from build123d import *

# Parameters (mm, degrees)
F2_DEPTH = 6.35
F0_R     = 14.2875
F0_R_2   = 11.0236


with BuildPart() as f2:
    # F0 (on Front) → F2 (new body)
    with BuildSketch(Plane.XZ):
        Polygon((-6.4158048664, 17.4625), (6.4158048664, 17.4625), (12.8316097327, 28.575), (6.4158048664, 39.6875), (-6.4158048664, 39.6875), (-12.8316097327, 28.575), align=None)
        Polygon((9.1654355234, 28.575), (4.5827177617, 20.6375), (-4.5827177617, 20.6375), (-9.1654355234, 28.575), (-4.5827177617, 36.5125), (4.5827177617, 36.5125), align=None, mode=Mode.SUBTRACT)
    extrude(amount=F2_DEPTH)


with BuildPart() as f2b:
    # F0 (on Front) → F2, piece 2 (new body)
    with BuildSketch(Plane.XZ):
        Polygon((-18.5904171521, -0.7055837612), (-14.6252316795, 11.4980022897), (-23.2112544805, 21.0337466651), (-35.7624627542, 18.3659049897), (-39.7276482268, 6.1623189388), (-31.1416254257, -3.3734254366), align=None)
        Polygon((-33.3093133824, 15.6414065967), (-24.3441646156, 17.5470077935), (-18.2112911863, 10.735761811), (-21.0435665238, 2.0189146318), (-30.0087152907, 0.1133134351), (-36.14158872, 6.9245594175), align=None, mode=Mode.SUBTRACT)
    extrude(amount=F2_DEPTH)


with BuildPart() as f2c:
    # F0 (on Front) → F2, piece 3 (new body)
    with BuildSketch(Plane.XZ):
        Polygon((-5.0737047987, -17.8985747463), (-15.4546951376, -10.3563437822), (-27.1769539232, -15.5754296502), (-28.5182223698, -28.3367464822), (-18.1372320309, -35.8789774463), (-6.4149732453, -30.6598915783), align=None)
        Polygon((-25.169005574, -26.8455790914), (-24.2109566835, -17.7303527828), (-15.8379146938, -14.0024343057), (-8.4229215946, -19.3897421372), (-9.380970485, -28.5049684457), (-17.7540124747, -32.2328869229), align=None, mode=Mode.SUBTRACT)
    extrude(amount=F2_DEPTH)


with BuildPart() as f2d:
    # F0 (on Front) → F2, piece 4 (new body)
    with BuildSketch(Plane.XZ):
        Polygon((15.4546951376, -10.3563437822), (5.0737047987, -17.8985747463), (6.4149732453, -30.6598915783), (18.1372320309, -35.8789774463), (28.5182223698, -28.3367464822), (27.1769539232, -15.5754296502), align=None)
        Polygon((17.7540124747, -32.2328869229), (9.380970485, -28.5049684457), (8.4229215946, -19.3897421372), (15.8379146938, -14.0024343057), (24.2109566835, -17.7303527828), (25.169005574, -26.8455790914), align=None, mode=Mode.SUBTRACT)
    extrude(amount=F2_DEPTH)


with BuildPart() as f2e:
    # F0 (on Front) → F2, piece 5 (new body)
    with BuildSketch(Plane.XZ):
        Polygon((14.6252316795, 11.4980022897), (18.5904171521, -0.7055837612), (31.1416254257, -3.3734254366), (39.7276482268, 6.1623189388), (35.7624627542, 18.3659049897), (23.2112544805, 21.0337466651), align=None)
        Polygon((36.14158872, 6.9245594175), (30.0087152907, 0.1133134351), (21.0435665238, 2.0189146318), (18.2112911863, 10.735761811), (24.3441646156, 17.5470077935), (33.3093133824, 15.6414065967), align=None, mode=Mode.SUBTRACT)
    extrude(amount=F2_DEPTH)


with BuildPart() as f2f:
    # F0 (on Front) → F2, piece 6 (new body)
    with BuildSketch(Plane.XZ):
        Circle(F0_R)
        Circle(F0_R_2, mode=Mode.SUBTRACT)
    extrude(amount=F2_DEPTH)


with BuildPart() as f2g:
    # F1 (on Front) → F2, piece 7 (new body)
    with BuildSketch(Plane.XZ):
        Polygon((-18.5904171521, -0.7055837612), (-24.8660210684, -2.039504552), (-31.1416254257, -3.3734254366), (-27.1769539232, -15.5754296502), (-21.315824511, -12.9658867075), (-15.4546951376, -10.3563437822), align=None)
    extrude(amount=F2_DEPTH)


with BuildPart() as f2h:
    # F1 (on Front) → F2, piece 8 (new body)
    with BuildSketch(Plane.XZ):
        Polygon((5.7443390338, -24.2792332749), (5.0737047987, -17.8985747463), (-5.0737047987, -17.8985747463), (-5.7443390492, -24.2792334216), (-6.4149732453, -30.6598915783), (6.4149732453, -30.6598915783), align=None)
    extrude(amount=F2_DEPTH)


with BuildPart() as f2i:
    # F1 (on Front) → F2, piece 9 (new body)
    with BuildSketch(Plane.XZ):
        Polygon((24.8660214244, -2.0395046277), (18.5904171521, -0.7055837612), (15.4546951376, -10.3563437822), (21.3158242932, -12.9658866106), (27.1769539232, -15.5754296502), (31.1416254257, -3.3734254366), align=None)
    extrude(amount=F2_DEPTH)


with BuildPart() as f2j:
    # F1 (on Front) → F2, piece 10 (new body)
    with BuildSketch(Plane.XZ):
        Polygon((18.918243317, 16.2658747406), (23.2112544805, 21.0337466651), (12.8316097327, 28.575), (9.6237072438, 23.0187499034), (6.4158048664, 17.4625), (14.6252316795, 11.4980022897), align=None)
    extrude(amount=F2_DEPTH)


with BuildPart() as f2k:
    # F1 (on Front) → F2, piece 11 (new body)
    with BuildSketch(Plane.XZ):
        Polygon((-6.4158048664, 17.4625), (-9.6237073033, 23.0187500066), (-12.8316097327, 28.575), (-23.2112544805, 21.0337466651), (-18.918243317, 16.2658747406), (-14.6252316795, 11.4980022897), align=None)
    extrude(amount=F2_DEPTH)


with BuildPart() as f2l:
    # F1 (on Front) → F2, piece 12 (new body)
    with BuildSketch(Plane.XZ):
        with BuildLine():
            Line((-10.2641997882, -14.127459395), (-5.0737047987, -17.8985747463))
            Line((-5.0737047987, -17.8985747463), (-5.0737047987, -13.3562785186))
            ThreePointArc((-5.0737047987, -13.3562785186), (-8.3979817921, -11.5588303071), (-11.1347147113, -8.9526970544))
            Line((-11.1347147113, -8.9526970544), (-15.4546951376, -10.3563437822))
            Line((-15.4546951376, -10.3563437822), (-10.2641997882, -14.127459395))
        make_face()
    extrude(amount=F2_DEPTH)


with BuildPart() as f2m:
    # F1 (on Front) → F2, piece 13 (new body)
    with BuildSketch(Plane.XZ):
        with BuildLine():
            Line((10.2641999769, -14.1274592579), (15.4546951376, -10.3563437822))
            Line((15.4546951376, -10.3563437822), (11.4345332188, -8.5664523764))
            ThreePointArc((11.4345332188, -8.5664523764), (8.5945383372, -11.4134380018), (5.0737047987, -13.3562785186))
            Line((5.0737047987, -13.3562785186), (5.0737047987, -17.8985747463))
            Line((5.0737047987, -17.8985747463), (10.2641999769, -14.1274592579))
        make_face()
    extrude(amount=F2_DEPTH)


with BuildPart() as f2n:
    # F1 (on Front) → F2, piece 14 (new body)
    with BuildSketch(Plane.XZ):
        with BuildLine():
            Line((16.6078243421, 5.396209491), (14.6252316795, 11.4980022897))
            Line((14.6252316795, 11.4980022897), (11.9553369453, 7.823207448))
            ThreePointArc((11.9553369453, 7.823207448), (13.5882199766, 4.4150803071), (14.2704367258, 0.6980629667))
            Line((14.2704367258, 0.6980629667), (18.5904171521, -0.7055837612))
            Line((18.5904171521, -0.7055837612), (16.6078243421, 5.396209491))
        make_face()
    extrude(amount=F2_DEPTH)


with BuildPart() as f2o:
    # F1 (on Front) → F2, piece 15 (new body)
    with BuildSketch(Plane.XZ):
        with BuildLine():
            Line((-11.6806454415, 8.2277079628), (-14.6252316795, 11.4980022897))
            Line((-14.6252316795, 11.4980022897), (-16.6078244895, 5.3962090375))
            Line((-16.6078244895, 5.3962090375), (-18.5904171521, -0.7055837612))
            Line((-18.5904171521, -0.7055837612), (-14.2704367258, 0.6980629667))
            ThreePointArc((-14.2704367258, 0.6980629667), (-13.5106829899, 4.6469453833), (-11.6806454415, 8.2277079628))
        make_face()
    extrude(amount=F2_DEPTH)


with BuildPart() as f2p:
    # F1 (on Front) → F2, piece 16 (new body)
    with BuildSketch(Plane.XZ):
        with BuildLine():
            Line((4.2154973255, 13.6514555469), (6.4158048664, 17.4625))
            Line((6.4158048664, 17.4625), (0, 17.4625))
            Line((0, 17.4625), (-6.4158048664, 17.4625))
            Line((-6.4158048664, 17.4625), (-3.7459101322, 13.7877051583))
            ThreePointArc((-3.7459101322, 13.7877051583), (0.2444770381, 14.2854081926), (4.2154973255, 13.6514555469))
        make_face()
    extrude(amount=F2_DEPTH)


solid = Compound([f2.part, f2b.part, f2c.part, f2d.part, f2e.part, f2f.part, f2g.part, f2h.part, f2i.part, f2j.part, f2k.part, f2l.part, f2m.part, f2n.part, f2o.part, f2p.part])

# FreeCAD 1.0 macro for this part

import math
import FreeCAD as App
import Part
import Sketcher

V = App.Vector
Q = App.Units.Quantity

doc = App.newDocument("Part")
body = doc.addObject("PartDesign::Body", "Body")

sketch1 = doc.addObject("Sketcher::SketchObject", "Sketch")
body.addObject(sketch1)
sketch1.AttachmentSupport = (doc.XZ_Plane, [""])
sketch1.MapMode = "FlatFace"
sketch1.addGeometry([
    Part.LineSegment(V(-6, 17, 0), V(6, 17, 0)),
    Part.LineSegment(V(6, 17, 0), V(13, 29, 0)),
    Part.LineSegment(V(13, 29, 0), V(6, 40, 0)),
    Part.LineSegment(V(6, 40, 0), V(-6, 40, 0)),
    Part.LineSegment(V(-6, 40, 0), V(-13, 29, 0)),
    Part.LineSegment(V(-13, 29, 0), V(-6, 17, 0)),
    Part.LineSegment(V(5, 37, 0), V(9, 29, 0)),
    Part.LineSegment(V(9, 29, 0), V(5, 21, 0)),
    Part.LineSegment(V(5, 21, 0), V(-5, 21, 0)),
    Part.LineSegment(V(-5, 21, 0), V(-9, 29, 0)),
    Part.LineSegment(V(-9, 29, 0), V(-5, 37, 0)),
    Part.LineSegment(V(-5, 37, 0), V(5, 37, 0)),
], False)
sketch1.addConstraint([
    Sketcher.Constraint("Coincident", 0, 2, 1, 1),
    Sketcher.Constraint("Coincident", 1, 2, 2, 1),
    Sketcher.Constraint("Coincident", 2, 2, 3, 1),
    Sketcher.Constraint("Coincident", 3, 2, 4, 1),
    Sketcher.Constraint("Coincident", 4, 2, 5, 1),
    Sketcher.Constraint("Coincident", 5, 2, 0, 1),
    Sketcher.Constraint("Coincident", 6, 2, 7, 1),
    Sketcher.Constraint("Coincident", 7, 2, 8, 1),
    Sketcher.Constraint("Coincident", 8, 2, 9, 1),
    Sketcher.Constraint("Coincident", 9, 2, 10, 1),
    Sketcher.Constraint("Coincident", 10, 2, 11, 1),
    Sketcher.Constraint("Coincident", 11, 2, 6, 1),
    Sketcher.Constraint("Horizontal", 0),
    Sketcher.Constraint("Horizontal", 3),
    Sketcher.Constraint("Horizontal", 8),
    Sketcher.Constraint("Horizontal", 11),
    Sketcher.Constraint("Symmetric", 1, 2, 4, 2, -2),
    Sketcher.Constraint("Symmetric", 6, 2, 9, 2, -2),
    Sketcher.Constraint("Parallel", 1, 4),
    Sketcher.Constraint("Parallel", 2, 5),
    Sketcher.Constraint("Parallel", 5, 6),
    Sketcher.Constraint("Parallel", 4, 7),
    Sketcher.Constraint("Parallel", 6, 9),
    Sketcher.Constraint("Parallel", 7, 10),
    Sketcher.Constraint("Horizontal", 4, 2, 6, 2),
    Sketcher.Constraint("Vertical", 0, 2, 2, 2),
    Sketcher.Constraint("Vertical", 3, 2, 5, 2),
    Sketcher.Constraint("Vertical", 8, 2, 10, 2),
    Sketcher.Constraint("Angle", 1, Q("60 deg")),
    Sketcher.Constraint("DistanceY", 7, 2, 2, 2, Q("0.75 in")),
    Sketcher.Constraint("DistanceY", -1, 1, 0, 2, Q("0.6875 in")),
    Sketcher.Constraint("DistanceY", -1, 1, 1, 2, Q("1.125 in")),
    Sketcher.Constraint("DistanceX", 0, 1, 0, 2, 12.83161),
    Sketcher.Constraint("DistanceX", 8, 2, 8, 1, 9.165436),
])
pad1 = doc.addObject("PartDesign::Pad", "Pad")
body.addObject(pad1)
pad1.Profile = sketch1
pad1.Length = Q("0.25 in")
body2 = doc.addObject("PartDesign::Body", "Body001")

sketch2 = doc.addObject("Sketcher::SketchObject", "Sketch001")
body2.addObject(sketch2)
sketch2.AttachmentSupport = (doc.getObject("XZ_Plane001"), [""])
sketch2.MapMode = "FlatFace"
sketch2.addGeometry([
    Part.LineSegment(V(-19, -1, 0), V(-15, 11, 0)),
    Part.LineSegment(V(-15, 11, 0), V(-23, 21, 0)),
    Part.LineSegment(V(-23, 21, 0), V(-36, 18, 0)),
    Part.LineSegment(V(-36, 18, 0), V(-40, 6, 0)),
    Part.LineSegment(V(-40, 6, 0), V(-31, -3, 0)),
    Part.LineSegment(V(-31, -3, 0), V(-19, -1, 0)),
    Part.LineSegment(V(-36, 7, 0), V(-33, 16, 0)),
    Part.LineSegment(V(-33, 16, 0), V(-24, 18, 0)),
    Part.LineSegment(V(-24, 18, 0), V(-18, 11, 0)),
    Part.LineSegment(V(-18, 11, 0), V(-21, 2, 0)),
    Part.LineSegment(V(-21, 2, 0), V(-30, 0, 0)),
    Part.LineSegment(V(-30, 0, 0), V(-36, 7, 0)),
], False)
sketch2.addConstraint([
    Sketcher.Constraint("Coincident", 0, 2, 1, 1),
    Sketcher.Constraint("Coincident", 1, 2, 2, 1),
    Sketcher.Constraint("Coincident", 2, 2, 3, 1),
    Sketcher.Constraint("Coincident", 3, 2, 4, 1),
    Sketcher.Constraint("Coincident", 4, 2, 5, 1),
    Sketcher.Constraint("Coincident", 5, 2, 0, 1),
    Sketcher.Constraint("Coincident", 6, 2, 7, 1),
    Sketcher.Constraint("Coincident", 7, 2, 8, 1),
    Sketcher.Constraint("Coincident", 8, 2, 9, 1),
    Sketcher.Constraint("Coincident", 9, 2, 10, 1),
    Sketcher.Constraint("Coincident", 10, 2, 11, 1),
    Sketcher.Constraint("Coincident", 11, 2, 6, 1),
    Sketcher.Constraint("Parallel", 0, 3),
    Sketcher.Constraint("Parallel", 1, 4),
    Sketcher.Constraint("Parallel", 2, 5),
    Sketcher.Constraint("Parallel", 3, 6),
    Sketcher.Constraint("Parallel", 5, 7),
    Sketcher.Constraint("Parallel", 4, 8),
    Sketcher.Constraint("Parallel", 6, 9),
    Sketcher.Constraint("Parallel", 7, 10),
    Sketcher.Constraint("Parallel", 8, 11),
    Sketcher.Constraint("Equal", 0, 1),
    Sketcher.Constraint("Equal", 1, 2),
    Sketcher.Constraint("Equal", 2, 3),
    Sketcher.Constraint("Equal", 6, 7),
    Sketcher.Constraint("Equal", 7, 8),
    Sketcher.Constraint("Equal", 8, 9),
    Sketcher.Constraint("Angle", 0, Q("72 deg")),
    Sketcher.Constraint("Angle", 1, Q("132 deg")),
    Sketcher.Constraint("Angle", 2, Q("-168 deg")),
    Sketcher.Constraint("DistanceY", 6, 2, 2, 2, 2.724498),
    Sketcher.Constraint("DistanceY", 6, 2, 7, 2, 1.905601),
    Sketcher.Constraint("DistanceX", 2, 2, 7, 2, 11.418298),
    Sketcher.Constraint("DistanceY", 5, 2, 9, 2, 2.724498),
    Sketcher.Constraint("DistanceX", 0, 2, -1, 1, 14.625232),
    Sketcher.Constraint("DistanceY", -1, 1, 3, 2, 6.162319),
])
pad2 = doc.addObject("PartDesign::Pad", "Pad001")
body2.addObject(pad2)
pad2.Profile = sketch2
pad2.Length = Q("0.25 in")
body3 = doc.addObject("PartDesign::Body", "Body002")

sketch3 = doc.addObject("Sketcher::SketchObject", "Sketch002")
body3.addObject(sketch3)
sketch3.AttachmentSupport = (doc.getObject("XZ_Plane002"), [""])
sketch3.MapMode = "FlatFace"
sketch3.addGeometry([
    Part.LineSegment(V(-5, -18, 0), V(-15, -10, 0)),
    Part.LineSegment(V(-15, -10, 0), V(-27, -16, 0)),
    Part.LineSegment(V(-27, -16, 0), V(-29, -28, 0)),
    Part.LineSegment(V(-29, -28, 0), V(-18, -36, 0)),
    Part.LineSegment(V(-18, -36, 0), V(-6, -31, 0)),
    Part.LineSegment(V(-6, -31, 0), V(-5, -18, 0)),
    Part.LineSegment(V(-18, -32, 0), V(-25, -27, 0)),
    Part.LineSegment(V(-25, -27, 0), V(-24, -18, 0)),
    Part.LineSegment(V(-24, -18, 0), V(-16, -14, 0)),
    Part.LineSegment(V(-16, -14, 0), V(-8, -19, 0)),
    Part.LineSegment(V(-8, -19, 0), V(-9, -29, 0)),
    Part.LineSegment(V(-9, -29, 0), V(-18, -32, 0)),
], False)
sketch3.addConstraint([
    Sketcher.Constraint("Coincident", 0, 2, 1, 1),
    Sketcher.Constraint("Coincident", 1, 2, 2, 1),
    Sketcher.Constraint("Coincident", 2, 2, 3, 1),
    Sketcher.Constraint("Coincident", 3, 2, 4, 1),
    Sketcher.Constraint("Coincident", 4, 2, 5, 1),
    Sketcher.Constraint("Coincident", 5, 2, 0, 1),
    Sketcher.Constraint("Coincident", 6, 2, 7, 1),
    Sketcher.Constraint("Coincident", 7, 2, 8, 1),
    Sketcher.Constraint("Coincident", 8, 2, 9, 1),
    Sketcher.Constraint("Coincident", 9, 2, 10, 1),
    Sketcher.Constraint("Coincident", 10, 2, 11, 1),
    Sketcher.Constraint("Coincident", 11, 2, 6, 1),
    Sketcher.Constraint("Parallel", 0, 3),
    Sketcher.Constraint("Parallel", 1, 4),
    Sketcher.Constraint("Parallel", 2, 5),
    Sketcher.Constraint("Parallel", 3, 6),
    Sketcher.Constraint("Parallel", 5, 7),
    Sketcher.Constraint("Parallel", 4, 8),
    Sketcher.Constraint("Parallel", 6, 9),
    Sketcher.Constraint("Parallel", 7, 10),
    Sketcher.Constraint("Parallel", 8, 11),
    Sketcher.Constraint("Equal", 0, 1),
    Sketcher.Constraint("Equal", 1, 2),
    Sketcher.Constraint("Equal", 2, 3),
    Sketcher.Constraint("Equal", 6, 7),
    Sketcher.Constraint("Equal", 7, 8),
    Sketcher.Constraint("Equal", 8, 9),
    Sketcher.Constraint("Angle", 0, Q("144 deg")),
    Sketcher.Constraint("Angle", 1, Q("-156 deg")),
    Sketcher.Constraint("Angle", 2, Q("-96 deg")),
    Sketcher.Constraint("DistanceY", 3, 2, 6, 2, 9.033398),
    Sketcher.Constraint("DistanceY", 9, 2, 0, 2, 9.033398),
    Sketcher.Constraint("Distance", 0, 12.83161),
    Sketcher.Constraint("DistanceY", 1, 2, -1, 1, 15.57543),
    Sketcher.Constraint("DistanceX", 9, 2, -1, 1, 8.422922),
    Sketcher.Constraint("DistanceX", 1, 2, 6, 2, 2.007948),
])
pad3 = doc.addObject("PartDesign::Pad", "Pad002")
body3.addObject(pad3)
pad3.Profile = sketch3
pad3.Length = Q("0.25 in")
body4 = doc.addObject("PartDesign::Body", "Body003")

sketch4 = doc.addObject("Sketcher::SketchObject", "Sketch003")
body4.addObject(sketch4)
sketch4.AttachmentSupport = (doc.getObject("XZ_Plane003"), [""])
sketch4.MapMode = "FlatFace"
sketch4.addGeometry([
    Part.LineSegment(V(15, -10, 0), V(5, -18, 0)),
    Part.LineSegment(V(5, -18, 0), V(6, -31, 0)),
    Part.LineSegment(V(6, -31, 0), V(18, -36, 0)),
    Part.LineSegment(V(18, -36, 0), V(29, -28, 0)),
    Part.LineSegment(V(29, -28, 0), V(27, -16, 0)),
    Part.LineSegment(V(27, -16, 0), V(15, -10, 0)),
    Part.LineSegment(V(25, -27, 0), V(18, -32, 0)),
    Part.LineSegment(V(18, -32, 0), V(9, -29, 0)),
    Part.LineSegment(V(9, -29, 0), V(8, -19, 0)),
    Part.LineSegment(V(8, -19, 0), V(16, -14, 0)),
    Part.LineSegment(V(16, -14, 0), V(24, -18, 0)),
    Part.LineSegment(V(24, -18, 0), V(25, -27, 0)),
], False)
sketch4.addConstraint([
    Sketcher.Constraint("Coincident", 0, 2, 1, 1),
    Sketcher.Constraint("Coincident", 1, 2, 2, 1),
    Sketcher.Constraint("Coincident", 2, 2, 3, 1),
    Sketcher.Constraint("Coincident", 3, 2, 4, 1),
    Sketcher.Constraint("Coincident", 4, 2, 5, 1),
    Sketcher.Constraint("Coincident", 5, 2, 0, 1),
    Sketcher.Constraint("Coincident", 6, 2, 7, 1),
    Sketcher.Constraint("Coincident", 7, 2, 8, 1),
    Sketcher.Constraint("Coincident", 8, 2, 9, 1),
    Sketcher.Constraint("Coincident", 9, 2, 10, 1),
    Sketcher.Constraint("Coincident", 10, 2, 11, 1),
    Sketcher.Constraint("Coincident", 11, 2, 6, 1),
    Sketcher.Constraint("Parallel", 0, 3),
    Sketcher.Constraint("Parallel", 1, 4),
    Sketcher.Constraint("Parallel", 2, 5),
    Sketcher.Constraint("Parallel", 3, 6),
    Sketcher.Constraint("Parallel", 5, 7),
    Sketcher.Constraint("Parallel", 4, 8),
    Sketcher.Constraint("Parallel", 6, 9),
    Sketcher.Constraint("Parallel", 7, 10),
    Sketcher.Constraint("Parallel", 8, 11),
    Sketcher.Constraint("Equal", 0, 1),
    Sketcher.Constraint("Equal", 1, 2),
    Sketcher.Constraint("Equal", 2, 3),
    Sketcher.Constraint("Equal", 6, 7),
    Sketcher.Constraint("Equal", 7, 8),
    Sketcher.Constraint("Equal", 8, 9),
    Sketcher.Constraint("Angle", 0, Q("-144 deg")),
    Sketcher.Constraint("Angle", 1, Q("-84 deg")),
    Sketcher.Constraint("Angle", 2, Q("-24 deg")),
    Sketcher.Constraint("DistanceY", 8, 2, 5, 2, 9.033398),
    Sketcher.Constraint("DistanceY", 2, 2, 11, 2, 9.033398),
    Sketcher.Constraint("Distance", 0, 12.83161),
    Sketcher.Constraint("DistanceY", 1, 2, -1, 1, 30.659892),
    Sketcher.Constraint("DistanceX", -1, 1, 7, 2, 9.38097),
    Sketcher.Constraint("DistanceX", 6, 2, 2, 2, 0.38322),
])
pad4 = doc.addObject("PartDesign::Pad", "Pad003")
body4.addObject(pad4)
pad4.Profile = sketch4
pad4.Length = Q("0.25 in")
body5 = doc.addObject("PartDesign::Body", "Body004")

sketch5 = doc.addObject("Sketcher::SketchObject", "Sketch004")
body5.addObject(sketch5)
sketch5.AttachmentSupport = (doc.getObject("XZ_Plane004"), [""])
sketch5.MapMode = "FlatFace"
sketch5.addGeometry([
    Part.LineSegment(V(15, 11, 0), V(19, -1, 0)),
    Part.LineSegment(V(19, -1, 0), V(31, -3, 0)),
    Part.LineSegment(V(31, -3, 0), V(40, 6, 0)),
    Part.LineSegment(V(40, 6, 0), V(36, 18, 0)),
    Part.LineSegment(V(36, 18, 0), V(23, 21, 0)),
    Part.LineSegment(V(23, 21, 0), V(15, 11, 0)),
    Part.LineSegment(V(33, 16, 0), V(36, 7, 0)),
    Part.LineSegment(V(36, 7, 0), V(30, 0, 0)),
    Part.LineSegment(V(30, 0, 0), V(21, 2, 0)),
    Part.LineSegment(V(21, 2, 0), V(18, 11, 0)),
    Part.LineSegment(V(18, 11, 0), V(24, 18, 0)),
    Part.LineSegment(V(24, 18, 0), V(33, 16, 0)),
], False)
sketch5.addConstraint([
    Sketcher.Constraint("Coincident", 0, 2, 1, 1),
    Sketcher.Constraint("Coincident", 1, 2, 2, 1),
    Sketcher.Constraint("Coincident", 2, 2, 3, 1),
    Sketcher.Constraint("Coincident", 3, 2, 4, 1),
    Sketcher.Constraint("Coincident", 4, 2, 5, 1),
    Sketcher.Constraint("Coincident", 5, 2, 0, 1),
    Sketcher.Constraint("Coincident", 6, 2, 7, 1),
    Sketcher.Constraint("Coincident", 7, 2, 8, 1),
    Sketcher.Constraint("Coincident", 8, 2, 9, 1),
    Sketcher.Constraint("Coincident", 9, 2, 10, 1),
    Sketcher.Constraint("Coincident", 10, 2, 11, 1),
    Sketcher.Constraint("Coincident", 11, 2, 6, 1),
    Sketcher.Constraint("Parallel", 0, 3),
    Sketcher.Constraint("Parallel", 1, 4),
    Sketcher.Constraint("Parallel", 2, 5),
    Sketcher.Constraint("Parallel", 3, 6),
    Sketcher.Constraint("Parallel", 5, 7),
    Sketcher.Constraint("Parallel", 4, 8),
    Sketcher.Constraint("Parallel", 6, 9),
    Sketcher.Constraint("Parallel", 7, 10),
    Sketcher.Constraint("Parallel", 8, 11),
    Sketcher.Constraint("Equal", 0, 1),
    Sketcher.Constraint("Equal", 1, 2),
    Sketcher.Constraint("Equal", 2, 3),
    Sketcher.Constraint("Equal", 6, 7),
    Sketcher.Constraint("Equal", 7, 8),
    Sketcher.Constraint("Equal", 8, 9),
    Sketcher.Constraint("Angle", 0, Q("-72 deg")),
    Sketcher.Constraint("Angle", 1, Q("-12 deg")),
    Sketcher.Constraint("Angle", 2, Q("48 deg")),
    Sketcher.Constraint("DistanceX", 0, 2, 7, 2, 11.418298),
    Sketcher.Constraint("DistanceY", 0, 2, 8, 2, 2.724498),
    Sketcher.Constraint("DistanceY", 7, 2, 8, 2, 1.905601),
    Sketcher.Constraint("DistanceX", 10, 2, 3, 2, 11.418298),
    Sketcher.Constraint("DistanceX", -1, 1, 2, 2, 39.727648),
    Sketcher.Constraint("DistanceY", -1, 1, 2, 2, 6.162319),
])
pad5 = doc.addObject("PartDesign::Pad", "Pad004")
body5.addObject(pad5)
pad5.Profile = sketch5
pad5.Length = Q("0.25 in")
body6 = doc.addObject("PartDesign::Body", "Body005")

sketch6 = doc.addObject("Sketcher::SketchObject", "Sketch005")
body6.addObject(sketch6)
sketch6.AttachmentSupport = (doc.getObject("XZ_Plane005"), [""])
sketch6.MapMode = "FlatFace"
sketch6.addGeometry([
    Part.Circle(V(0, 0, 0), V(0, 0, 1), 14),
    Part.Circle(V(0, 0, 0), V(0, 0, 1), 11),
], False)
sketch6.addConstraint([
    Sketcher.Constraint("Coincident", 0, 3, -1, 1),
    Sketcher.Constraint("Coincident", 1, 3, -1, 1),
    Sketcher.Constraint("Diameter", 0, Q("1.125 in")),
    Sketcher.Constraint("Diameter", 1, Q("0.868 in")),
])
pad6 = doc.addObject("PartDesign::Pad", "Pad005")
body6.addObject(pad6)
pad6.Profile = sketch6
pad6.Length = Q("0.25 in")
body7 = doc.addObject("PartDesign::Body", "Body006")

sketch7 = doc.addObject("Sketcher::SketchObject", "Sketch006")
body7.addObject(sketch7)
sketch7.AttachmentSupport = (doc.getObject("XZ_Plane006"), [""])
sketch7.MapMode = "FlatFace"
sketch7.addGeometry([
    Part.LineSegment(V(-19, -1, 0), V(-25, -2, 0)),
    Part.LineSegment(V(-25, -2, 0), V(-31, -3, 0)),
    Part.LineSegment(V(-31, -3, 0), V(-27, -16, 0)),
    Part.LineSegment(V(-27, -16, 0), V(-21, -13, 0)),
    Part.LineSegment(V(-21, -13, 0), V(-15, -10, 0)),
    Part.LineSegment(V(-15, -10, 0), V(-19, -1, 0)),
], False)
sketch7.addConstraint([
    Sketcher.Constraint("Coincident", 0, 2, 1, 1),
    Sketcher.Constraint("Coincident", 1, 2, 2, 1),
    Sketcher.Constraint("Coincident", 2, 2, 3, 1),
    Sketcher.Constraint("Coincident", 3, 2, 4, 1),
    Sketcher.Constraint("Coincident", 4, 2, 5, 1),
    Sketcher.Constraint("Coincident", 5, 2, 0, 1),
    Sketcher.Constraint("Parallel", 0, 1),
    Sketcher.Constraint("Parallel", 3, 4),
    Sketcher.Constraint("Parallel", 2, 5),
    Sketcher.Constraint("Equal", 0, 1),
    Sketcher.Constraint("Equal", 1, 3),
    Sketcher.Constraint("Equal", 3, 4),
    Sketcher.Constraint("Angle", 0, Q("-168 deg")),
    Sketcher.Constraint("Angle", 2, Q("-72 deg")),
    Sketcher.Constraint("DistanceX", 1, 2, 3, 2, 9.825801),
    Sketcher.Constraint("Distance", 5, 10.14741),
    Sketcher.Constraint("DistanceX", 0, 2, -1, 1, 24.866021),
    Sketcher.Constraint("DistanceY", 2, 2, -1, 1, 15.57543),
])
pad7 = doc.addObject("PartDesign::Pad", "Pad006")
body7.addObject(pad7)
pad7.Profile = sketch7
pad7.Length = Q("0.25 in")
body8 = doc.addObject("PartDesign::Body", "Body007")

sketch8 = doc.addObject("Sketcher::SketchObject", "Sketch007")
body8.addObject(sketch8)
sketch8.AttachmentSupport = (doc.getObject("XZ_Plane007"), [""])
sketch8.MapMode = "FlatFace"
sketch8.addGeometry([
    Part.LineSegment(V(6, -24, 0), V(5, -18, 0)),
    Part.LineSegment(V(5, -18, 0), V(-5, -18, 0)),
    Part.LineSegment(V(-5, -18, 0), V(-6, -24, 0)),
    Part.LineSegment(V(-6, -24, 0), V(-6, -31, 0)),
    Part.LineSegment(V(-6, -31, 0), V(6, -31, 0)),
    Part.LineSegment(V(6, -31, 0), V(6, -24, 0)),
], False)
sketch8.addConstraint([
    Sketcher.Constraint("Coincident", 0, 2, 1, 1),
    Sketcher.Constraint("Coincident", 1, 2, 2, 1),
    Sketcher.Constraint("Coincident", 2, 2, 3, 1),
    Sketcher.Constraint("Coincident", 3, 2, 4, 1),
    Sketcher.Constraint("Coincident", 4, 2, 5, 1),
    Sketcher.Constraint("Coincident", 5, 2, 0, 1),
    Sketcher.Constraint("Horizontal", 1),
    Sketcher.Constraint("Horizontal", 4),
    Sketcher.Constraint("Symmetric", 2, 2, 5, 2, -2),
    Sketcher.Constraint("Parallel", 2, 3),
    Sketcher.Constraint("Parallel", 0, 5),
    Sketcher.Constraint("Equal", 0, 2),
    Sketcher.Constraint("Equal", 2, 3),
    Sketcher.Constraint("Angle", 0, Q("96 deg")),
    Sketcher.Constraint("DistanceX", 1, 2, 1, 1, 10.14741),
    Sketcher.Constraint("DistanceX", 4, 1, 4, 2, 12.829946),
    Sketcher.Constraint("DistanceY", 3, 2, -1, 1, 30.659892),
])
pad8 = doc.addObject("PartDesign::Pad", "Pad007")
body8.addObject(pad8)
pad8.Profile = sketch8
pad8.Length = Q("0.25 in")
body9 = doc.addObject("PartDesign::Body", "Body008")

sketch9 = doc.addObject("Sketcher::SketchObject", "Sketch008")
body9.addObject(sketch9)
sketch9.AttachmentSupport = (doc.getObject("XZ_Plane008"), [""])
sketch9.MapMode = "FlatFace"
sketch9.addGeometry([
    Part.LineSegment(V(19, -1, 0), V(15, -10, 0)),
    Part.LineSegment(V(15, -10, 0), V(21, -13, 0)),
    Part.LineSegment(V(21, -13, 0), V(27, -16, 0)),
    Part.LineSegment(V(27, -16, 0), V(31, -3, 0)),
    Part.LineSegment(V(31, -3, 0), V(19, -1, 0)),
], False)
sketch9.addConstraint([
    Sketcher.Constraint("Coincident", 0, 2, 1, 1),
    Sketcher.Constraint("Coincident", 1, 2, 2, 1),
    Sketcher.Constraint("Coincident", 2, 2, 3, 1),
    Sketcher.Constraint("Coincident", 3, 2, 4, 1),
    Sketcher.Constraint("Coincident", 4, 2, 0, 1),
    Sketcher.Constraint("Parallel", 1, 2),
    Sketcher.Constraint("Parallel", 0, 3),
    Sketcher.Constraint("Equal", 1, 2),
    Sketcher.Constraint("Angle", 0, Q("-108 deg")),
    Sketcher.Constraint("Angle", 1, Q("-24 deg")),
    Sketcher.Constraint("Angle", 4, Q("168 deg")),
    Sketcher.Constraint("DistanceX", 1, 2, 3, 2, 9.825801),
    Sketcher.Constraint("Distance", 0, 10.14741),
    Sketcher.Constraint("DistanceY", 2, 2, -1, 1, 15.57543),
    Sketcher.Constraint("DistanceX", -1, 1, 0, 2, 15.454695),
])
pad9 = doc.addObject("PartDesign::Pad", "Pad008")
body9.addObject(pad9)
pad9.Profile = sketch9
pad9.Length = Q("0.25 in")
body10 = doc.addObject("PartDesign::Body", "Body009")

sketch10 = doc.addObject("Sketcher::SketchObject", "Sketch009")
body10.addObject(sketch10)
sketch10.AttachmentSupport = (doc.getObject("XZ_Plane009"), [""])
sketch10.MapMode = "FlatFace"
sketch10.addGeometry([
    Part.LineSegment(V(19, 16, 0), V(23, 21, 0)),
    Part.LineSegment(V(23, 21, 0), V(13, 29, 0)),
    Part.LineSegment(V(13, 29, 0), V(10, 23, 0)),
    Part.LineSegment(V(10, 23, 0), V(6, 17, 0)),
    Part.LineSegment(V(6, 17, 0), V(15, 11, 0)),
    Part.LineSegment(V(15, 11, 0), V(19, 16, 0)),
], False)
sketch10.addConstraint([
    Sketcher.Constraint("Coincident", 0, 2, 1, 1),
    Sketcher.Constraint("Coincident", 1, 2, 2, 1),
    Sketcher.Constraint("Coincident", 2, 2, 3, 1),
    Sketcher.Constraint("Coincident", 3, 2, 4, 1),
    Sketcher.Constraint("Coincident", 4, 2, 5, 1),
    Sketcher.Constraint("Coincident", 5, 2, 0, 1),
    Sketcher.Constraint("Parallel", 2, 3),
    Sketcher.Constraint("Parallel", 1, 4),
    Sketcher.Constraint("Parallel", 0, 5),
    Sketcher.Constraint("Equal", 0, 2),
    Sketcher.Constraint("Equal", 2, 3),
    Sketcher.Constraint("Equal", 3, 5),
    Sketcher.Constraint("Angle", 0, Q("48 deg")),
    Sketcher.Constraint("Angle", 1, Q("144 deg")),
    Sketcher.Constraint("DistanceY", -1, 1, 1, 2, Q("1.125 in")),
    Sketcher.Constraint("DistanceY", -1, 1, 2, 2, Q("0.90625 in")),
    Sketcher.Constraint("Distance", 4, 10.14741),
    Sketcher.Constraint("DistanceX", -1, 1, 1, 2, 12.83161),
])
pad10 = doc.addObject("PartDesign::Pad", "Pad009")
body10.addObject(pad10)
pad10.Profile = sketch10
pad10.Length = Q("0.25 in")
body11 = doc.addObject("PartDesign::Body", "Body010")

sketch11 = doc.addObject("Sketcher::SketchObject", "Sketch010")
body11.addObject(sketch11)
sketch11.AttachmentSupport = (doc.getObject("XZ_Plane010"), [""])
sketch11.MapMode = "FlatFace"
sketch11.addGeometry([
    Part.LineSegment(V(-6, 17, 0), V(-10, 23, 0)),
    Part.LineSegment(V(-10, 23, 0), V(-13, 29, 0)),
    Part.LineSegment(V(-13, 29, 0), V(-23, 21, 0)),
    Part.LineSegment(V(-23, 21, 0), V(-19, 16, 0)),
    Part.LineSegment(V(-19, 16, 0), V(-15, 11, 0)),
    Part.LineSegment(V(-15, 11, 0), V(-6, 17, 0)),
], False)
sketch11.addConstraint([
    Sketcher.Constraint("Coincident", 0, 2, 1, 1),
    Sketcher.Constraint("Coincident", 1, 2, 2, 1),
    Sketcher.Constraint("Coincident", 2, 2, 3, 1),
    Sketcher.Constraint("Coincident", 3, 2, 4, 1),
    Sketcher.Constraint("Coincident", 4, 2, 5, 1),
    Sketcher.Constraint("Coincident", 5, 2, 0, 1),
    Sketcher.Constraint("Parallel", 0, 1),
    Sketcher.Constraint("Parallel", 3, 4),
    Sketcher.Constraint("Parallel", 2, 5),
    Sketcher.Constraint("Equal", 0, 1),
    Sketcher.Constraint("Equal", 1, 3),
    Sketcher.Constraint("Equal", 3, 4),
    Sketcher.Constraint("Angle", 0, Q("120 deg")),
    Sketcher.Constraint("Angle", 2, Q("-144 deg")),
    Sketcher.Constraint("DistanceY", -1, 1, 0, 2, Q("0.90625 in")),
    Sketcher.Constraint("DistanceY", -1, 1, 1, 2, Q("1.125 in")),
    Sketcher.Constraint("Distance", 5, 10.14741),
    Sketcher.Constraint("DistanceX", 1, 2, -1, 1, 12.83161),
])
pad11 = doc.addObject("PartDesign::Pad", "Pad010")
body11.addObject(pad11)
pad11.Profile = sketch11
pad11.Length = Q("0.25 in")
body12 = doc.addObject("PartDesign::Body", "Body011")

sketch12 = doc.addObject("Sketcher::SketchObject", "Sketch011")
body12.addObject(sketch12)
sketch12.AttachmentSupport = (doc.getObject("XZ_Plane011"), [""])
sketch12.MapMode = "FlatFace"
sketch12.addGeometry([
    Part.LineSegment(V(-10.3, -14.1, 0), V(-5.1, -17.9, 0)),
    Part.LineSegment(V(-5.1, -17.9, 0), V(-5.1, -13.4, 0)),
    Part.ArcOfCircle(Part.Circle(V(0, 0, 0), V(0, 0, 1), 14.3), math.radians(-141), math.radians(-111)),
    Part.LineSegment(V(-11.1, -9, 0), V(-15.5, -10.4, 0)),
    Part.LineSegment(V(-15.5, -10.4, 0), V(-10.3, -14.1, 0)),
], False)
sketch12.addConstraint([
    Sketcher.Constraint("Coincident", 0, 2, 1, 1),
    Sketcher.Constraint("Coincident", 1, 2, 2, 2),
    Sketcher.Constraint("Coincident", 2, 1, 3, 1),
    Sketcher.Constraint("Coincident", 3, 2, 4, 1),
    Sketcher.Constraint("Coincident", 4, 2, 0, 1),
    Sketcher.Constraint("Vertical", 1),
    Sketcher.Constraint("Coincident", 2, 3, -1, 1),
    Sketcher.Constraint("Parallel", 0, 4),
    Sketcher.Constraint("Equal", 0, 4),
    Sketcher.Constraint("Angle", 0, Q("-36 deg")),
    Sketcher.Constraint("Angle", 3, Q("-162 deg")),
    Sketcher.Constraint("Radius", 2, Q("0.5625 in")),
    Sketcher.Constraint("DistanceY", 0, 2, 2, 1, Q("0.3521999 in")),
    Sketcher.Constraint("DistanceX", 4, 2, -1, 1, 10.2642),
    Sketcher.Constraint("DistanceY", 1, 1, 1, 2, 4.542296),
])
pad12 = doc.addObject("PartDesign::Pad", "Pad011")
body12.addObject(pad12)
pad12.Profile = sketch12
pad12.Length = Q("0.25 in")
body13 = doc.addObject("PartDesign::Body", "Body012")

sketch13 = doc.addObject("Sketcher::SketchObject", "Sketch012")
body13.addObject(sketch13)
sketch13.AttachmentSupport = (doc.getObject("XZ_Plane012"), [""])
sketch13.MapMode = "FlatFace"
sketch13.addGeometry([
    Part.LineSegment(V(10.3, -14.1, 0), V(15.5, -10.4, 0)),
    Part.LineSegment(V(15.5, -10.4, 0), V(11.4, -8.6, 0)),
    Part.ArcOfCircle(Part.Circle(V(0, 0, 0), V(0, 0, 1), 14.3), math.radians(-69), math.radians(-37)),
    Part.LineSegment(V(5.1, -13.4, 0), V(5.1, -17.9, 0)),
    Part.LineSegment(V(5.1, -17.9, 0), V(10.3, -14.1, 0)),
], False)
sketch13.addConstraint([
    Sketcher.Constraint("Coincident", 0, 2, 1, 1),
    Sketcher.Constraint("Coincident", 1, 2, 2, 2),
    Sketcher.Constraint("Coincident", 2, 1, 3, 1),
    Sketcher.Constraint("Coincident", 3, 2, 4, 1),
    Sketcher.Constraint("Coincident", 4, 2, 0, 1),
    Sketcher.Constraint("Vertical", 3),
    Sketcher.Constraint("Coincident", 2, 3, -1, 1),
    Sketcher.Constraint("Parallel", 0, 4),
    Sketcher.Constraint("Equal", 0, 4),
    Sketcher.Constraint("Angle", 0, Q("36 deg")),
    Sketcher.Constraint("Angle", 1, Q("156 deg")),
    Sketcher.Constraint("Radius", 2, Q("0.5625 in")),
    Sketcher.Constraint("DistanceX", -1, 1, 4, 2, 10.2642),
    Sketcher.Constraint("DistanceY", 3, 2, 3, 1, 4.542296),
    Sketcher.Constraint("DistanceY", 2, 1, -1, 1, 13.356279),
])
pad13 = doc.addObject("PartDesign::Pad", "Pad012")
body13.addObject(pad13)
pad13.Profile = sketch13
pad13.Length = Q("0.25 in")
body14 = doc.addObject("PartDesign::Body", "Body013")

sketch14 = doc.addObject("Sketcher::SketchObject", "Sketch013")
body14.addObject(sketch14)
sketch14.AttachmentSupport = (doc.getObject("XZ_Plane013"), [""])
sketch14.MapMode = "FlatFace"
sketch14.addGeometry([
    Part.LineSegment(V(16.6, 5.4, 0), V(14.6, 11.5, 0)),
    Part.LineSegment(V(14.6, 11.5, 0), V(12, 7.8, 0)),
    Part.ArcOfCircle(Part.Circle(V(0, 0, 0), V(0, 0, 1), 14.3), math.radians(3), math.radians(33)),
    Part.LineSegment(V(14.3, 0.7, 0), V(18.6, -0.7, 0)),
    Part.LineSegment(V(18.6, -0.7, 0), V(16.6, 5.4, 0)),
], False)
sketch14.addConstraint([
    Sketcher.Constraint("Coincident", 0, 2, 1, 1),
    Sketcher.Constraint("Coincident", 1, 2, 2, 2),
    Sketcher.Constraint("Coincident", 2, 1, 3, 1),
    Sketcher.Constraint("Coincident", 3, 2, 4, 1),
    Sketcher.Constraint("Coincident", 4, 2, 0, 1),
    Sketcher.Constraint("Coincident", 2, 3, -1, 1),
    Sketcher.Constraint("Parallel", 0, 4),
    Sketcher.Constraint("Equal", 1, 3),
    Sketcher.Constraint("Equal", 0, 4),
    Sketcher.Constraint("Angle", 0, Q("108 deg")),
    Sketcher.Constraint("Angle", 1, Q("-126 deg")),
    Sketcher.Constraint("Angle", 3, Q("-18 deg")),
    Sketcher.Constraint("Radius", 2, Q("0.5625 in")),
    Sketcher.Constraint("DistanceX", 1, 2, 2, 1, 2.3151),
    Sketcher.Constraint("DistanceX", -1, 1, 0, 2, 14.625232),
])
pad14 = doc.addObject("PartDesign::Pad", "Pad013")
body14.addObject(pad14)
pad14.Profile = sketch14
pad14.Length = Q("0.25 in")
body15 = doc.addObject("PartDesign::Body", "Body014")

sketch15 = doc.addObject("Sketcher::SketchObject", "Sketch014")
body15.addObject(sketch15)
sketch15.AttachmentSupport = (doc.getObject("XZ_Plane014"), [""])
sketch15.MapMode = "FlatFace"
sketch15.addGeometry([
    Part.LineSegment(V(-11.7, 8.2, 0), V(-14.6, 11.5, 0)),
    Part.LineSegment(V(-14.6, 11.5, 0), V(-16.6, 5.4, 0)),
    Part.LineSegment(V(-16.6, 5.4, 0), V(-18.6, -0.7, 0)),
    Part.LineSegment(V(-18.6, -0.7, 0), V(-14.3, 0.7, 0)),
    Part.ArcOfCircle(Part.Circle(V(0, 0, 0), V(0, 0, 1), 14.3), math.radians(145), math.radians(177)),
], False)
sketch15.addConstraint([
    Sketcher.Constraint("Coincident", 0, 2, 1, 1),
    Sketcher.Constraint("Coincident", 1, 2, 2, 1),
    Sketcher.Constraint("Coincident", 2, 2, 3, 1),
    Sketcher.Constraint("Coincident", 3, 2, 4, 2),
    Sketcher.Constraint("Coincident", 4, 1, 0, 1),
    Sketcher.Constraint("Coincident", 4, 3, -1, 1),
    Sketcher.Constraint("Parallel", 1, 2),
    Sketcher.Constraint("Equal", 1, 2),
    Sketcher.Constraint("Angle", 0, Q("132 deg")),
    Sketcher.Constraint("Angle", 1, Q("-108 deg")),
    Sketcher.Constraint("Angle", 3, Q("18 deg")),
    Sketcher.Constraint("Radius", 4, Q("0.5625 in")),
    Sketcher.Constraint("DistanceY", 1, 2, 4, 1, 2.831499),
    Sketcher.Constraint("DistanceX", 0, 2, -1, 1, 14.625232),
    Sketcher.Constraint("DistanceY", -1, 1, 1, 2, 5.396209),
])
pad15 = doc.addObject("PartDesign::Pad", "Pad014")
body15.addObject(pad15)
pad15.Profile = sketch15
pad15.Length = Q("0.25 in")
body16 = doc.addObject("PartDesign::Body", "Body015")

sketch16 = doc.addObject("Sketcher::SketchObject", "Sketch015")
body16.addObject(sketch16)
sketch16.AttachmentSupport = (doc.getObject("XZ_Plane015"), [""])
sketch16.MapMode = "FlatFace"
sketch16.addGeometry([
    Part.LineSegment(V(4.2, 13.7, 0), V(6.4, 17.5, 0)),
    Part.LineSegment(V(6.4, 17.5, 0), V(-6.4, 17.5, 0)),
    Part.LineSegment(V(-6.4, 17.5, 0), V(-3.7, 13.8, 0)),
    Part.ArcOfCircle(Part.Circle(V(0, 0, 0), V(0, 0, 1), 14.3), math.radians(73), math.radians(105)),
], False)
sketch16.addConstraint([
    Sketcher.Constraint("Coincident", 0, 2, 1, 1),
    Sketcher.Constraint("Coincident", 1, 2, 2, 1),
    Sketcher.Constraint("Coincident", 2, 2, 3, 2),
    Sketcher.Constraint("Coincident", 3, 1, 0, 1),
    Sketcher.Constraint("Horizontal", 1),
    Sketcher.Constraint("Coincident", 3, 3, -1, 1),
    Sketcher.Constraint("Angle", 0, Q("60 deg")),
    Sketcher.Constraint("Angle", 2, Q("-54 deg")),
    Sketcher.Constraint("Radius", 3, Q("0.5625 in")),
    Sketcher.Constraint("DistanceY", -1, 1, 0, 2, Q("0.6875 in")),
    Sketcher.Constraint("DistanceX", 1, 2, 1, 1, 12.83161),
    Sketcher.Constraint("DistanceX", 2, 2, -1, 1, 3.74591),
])
pad16 = doc.addObject("PartDesign::Pad", "Pad015")
body16.addObject(pad16)
pad16.Profile = sketch16
pad16.Length = Q("0.25 in")

doc.recompute()
